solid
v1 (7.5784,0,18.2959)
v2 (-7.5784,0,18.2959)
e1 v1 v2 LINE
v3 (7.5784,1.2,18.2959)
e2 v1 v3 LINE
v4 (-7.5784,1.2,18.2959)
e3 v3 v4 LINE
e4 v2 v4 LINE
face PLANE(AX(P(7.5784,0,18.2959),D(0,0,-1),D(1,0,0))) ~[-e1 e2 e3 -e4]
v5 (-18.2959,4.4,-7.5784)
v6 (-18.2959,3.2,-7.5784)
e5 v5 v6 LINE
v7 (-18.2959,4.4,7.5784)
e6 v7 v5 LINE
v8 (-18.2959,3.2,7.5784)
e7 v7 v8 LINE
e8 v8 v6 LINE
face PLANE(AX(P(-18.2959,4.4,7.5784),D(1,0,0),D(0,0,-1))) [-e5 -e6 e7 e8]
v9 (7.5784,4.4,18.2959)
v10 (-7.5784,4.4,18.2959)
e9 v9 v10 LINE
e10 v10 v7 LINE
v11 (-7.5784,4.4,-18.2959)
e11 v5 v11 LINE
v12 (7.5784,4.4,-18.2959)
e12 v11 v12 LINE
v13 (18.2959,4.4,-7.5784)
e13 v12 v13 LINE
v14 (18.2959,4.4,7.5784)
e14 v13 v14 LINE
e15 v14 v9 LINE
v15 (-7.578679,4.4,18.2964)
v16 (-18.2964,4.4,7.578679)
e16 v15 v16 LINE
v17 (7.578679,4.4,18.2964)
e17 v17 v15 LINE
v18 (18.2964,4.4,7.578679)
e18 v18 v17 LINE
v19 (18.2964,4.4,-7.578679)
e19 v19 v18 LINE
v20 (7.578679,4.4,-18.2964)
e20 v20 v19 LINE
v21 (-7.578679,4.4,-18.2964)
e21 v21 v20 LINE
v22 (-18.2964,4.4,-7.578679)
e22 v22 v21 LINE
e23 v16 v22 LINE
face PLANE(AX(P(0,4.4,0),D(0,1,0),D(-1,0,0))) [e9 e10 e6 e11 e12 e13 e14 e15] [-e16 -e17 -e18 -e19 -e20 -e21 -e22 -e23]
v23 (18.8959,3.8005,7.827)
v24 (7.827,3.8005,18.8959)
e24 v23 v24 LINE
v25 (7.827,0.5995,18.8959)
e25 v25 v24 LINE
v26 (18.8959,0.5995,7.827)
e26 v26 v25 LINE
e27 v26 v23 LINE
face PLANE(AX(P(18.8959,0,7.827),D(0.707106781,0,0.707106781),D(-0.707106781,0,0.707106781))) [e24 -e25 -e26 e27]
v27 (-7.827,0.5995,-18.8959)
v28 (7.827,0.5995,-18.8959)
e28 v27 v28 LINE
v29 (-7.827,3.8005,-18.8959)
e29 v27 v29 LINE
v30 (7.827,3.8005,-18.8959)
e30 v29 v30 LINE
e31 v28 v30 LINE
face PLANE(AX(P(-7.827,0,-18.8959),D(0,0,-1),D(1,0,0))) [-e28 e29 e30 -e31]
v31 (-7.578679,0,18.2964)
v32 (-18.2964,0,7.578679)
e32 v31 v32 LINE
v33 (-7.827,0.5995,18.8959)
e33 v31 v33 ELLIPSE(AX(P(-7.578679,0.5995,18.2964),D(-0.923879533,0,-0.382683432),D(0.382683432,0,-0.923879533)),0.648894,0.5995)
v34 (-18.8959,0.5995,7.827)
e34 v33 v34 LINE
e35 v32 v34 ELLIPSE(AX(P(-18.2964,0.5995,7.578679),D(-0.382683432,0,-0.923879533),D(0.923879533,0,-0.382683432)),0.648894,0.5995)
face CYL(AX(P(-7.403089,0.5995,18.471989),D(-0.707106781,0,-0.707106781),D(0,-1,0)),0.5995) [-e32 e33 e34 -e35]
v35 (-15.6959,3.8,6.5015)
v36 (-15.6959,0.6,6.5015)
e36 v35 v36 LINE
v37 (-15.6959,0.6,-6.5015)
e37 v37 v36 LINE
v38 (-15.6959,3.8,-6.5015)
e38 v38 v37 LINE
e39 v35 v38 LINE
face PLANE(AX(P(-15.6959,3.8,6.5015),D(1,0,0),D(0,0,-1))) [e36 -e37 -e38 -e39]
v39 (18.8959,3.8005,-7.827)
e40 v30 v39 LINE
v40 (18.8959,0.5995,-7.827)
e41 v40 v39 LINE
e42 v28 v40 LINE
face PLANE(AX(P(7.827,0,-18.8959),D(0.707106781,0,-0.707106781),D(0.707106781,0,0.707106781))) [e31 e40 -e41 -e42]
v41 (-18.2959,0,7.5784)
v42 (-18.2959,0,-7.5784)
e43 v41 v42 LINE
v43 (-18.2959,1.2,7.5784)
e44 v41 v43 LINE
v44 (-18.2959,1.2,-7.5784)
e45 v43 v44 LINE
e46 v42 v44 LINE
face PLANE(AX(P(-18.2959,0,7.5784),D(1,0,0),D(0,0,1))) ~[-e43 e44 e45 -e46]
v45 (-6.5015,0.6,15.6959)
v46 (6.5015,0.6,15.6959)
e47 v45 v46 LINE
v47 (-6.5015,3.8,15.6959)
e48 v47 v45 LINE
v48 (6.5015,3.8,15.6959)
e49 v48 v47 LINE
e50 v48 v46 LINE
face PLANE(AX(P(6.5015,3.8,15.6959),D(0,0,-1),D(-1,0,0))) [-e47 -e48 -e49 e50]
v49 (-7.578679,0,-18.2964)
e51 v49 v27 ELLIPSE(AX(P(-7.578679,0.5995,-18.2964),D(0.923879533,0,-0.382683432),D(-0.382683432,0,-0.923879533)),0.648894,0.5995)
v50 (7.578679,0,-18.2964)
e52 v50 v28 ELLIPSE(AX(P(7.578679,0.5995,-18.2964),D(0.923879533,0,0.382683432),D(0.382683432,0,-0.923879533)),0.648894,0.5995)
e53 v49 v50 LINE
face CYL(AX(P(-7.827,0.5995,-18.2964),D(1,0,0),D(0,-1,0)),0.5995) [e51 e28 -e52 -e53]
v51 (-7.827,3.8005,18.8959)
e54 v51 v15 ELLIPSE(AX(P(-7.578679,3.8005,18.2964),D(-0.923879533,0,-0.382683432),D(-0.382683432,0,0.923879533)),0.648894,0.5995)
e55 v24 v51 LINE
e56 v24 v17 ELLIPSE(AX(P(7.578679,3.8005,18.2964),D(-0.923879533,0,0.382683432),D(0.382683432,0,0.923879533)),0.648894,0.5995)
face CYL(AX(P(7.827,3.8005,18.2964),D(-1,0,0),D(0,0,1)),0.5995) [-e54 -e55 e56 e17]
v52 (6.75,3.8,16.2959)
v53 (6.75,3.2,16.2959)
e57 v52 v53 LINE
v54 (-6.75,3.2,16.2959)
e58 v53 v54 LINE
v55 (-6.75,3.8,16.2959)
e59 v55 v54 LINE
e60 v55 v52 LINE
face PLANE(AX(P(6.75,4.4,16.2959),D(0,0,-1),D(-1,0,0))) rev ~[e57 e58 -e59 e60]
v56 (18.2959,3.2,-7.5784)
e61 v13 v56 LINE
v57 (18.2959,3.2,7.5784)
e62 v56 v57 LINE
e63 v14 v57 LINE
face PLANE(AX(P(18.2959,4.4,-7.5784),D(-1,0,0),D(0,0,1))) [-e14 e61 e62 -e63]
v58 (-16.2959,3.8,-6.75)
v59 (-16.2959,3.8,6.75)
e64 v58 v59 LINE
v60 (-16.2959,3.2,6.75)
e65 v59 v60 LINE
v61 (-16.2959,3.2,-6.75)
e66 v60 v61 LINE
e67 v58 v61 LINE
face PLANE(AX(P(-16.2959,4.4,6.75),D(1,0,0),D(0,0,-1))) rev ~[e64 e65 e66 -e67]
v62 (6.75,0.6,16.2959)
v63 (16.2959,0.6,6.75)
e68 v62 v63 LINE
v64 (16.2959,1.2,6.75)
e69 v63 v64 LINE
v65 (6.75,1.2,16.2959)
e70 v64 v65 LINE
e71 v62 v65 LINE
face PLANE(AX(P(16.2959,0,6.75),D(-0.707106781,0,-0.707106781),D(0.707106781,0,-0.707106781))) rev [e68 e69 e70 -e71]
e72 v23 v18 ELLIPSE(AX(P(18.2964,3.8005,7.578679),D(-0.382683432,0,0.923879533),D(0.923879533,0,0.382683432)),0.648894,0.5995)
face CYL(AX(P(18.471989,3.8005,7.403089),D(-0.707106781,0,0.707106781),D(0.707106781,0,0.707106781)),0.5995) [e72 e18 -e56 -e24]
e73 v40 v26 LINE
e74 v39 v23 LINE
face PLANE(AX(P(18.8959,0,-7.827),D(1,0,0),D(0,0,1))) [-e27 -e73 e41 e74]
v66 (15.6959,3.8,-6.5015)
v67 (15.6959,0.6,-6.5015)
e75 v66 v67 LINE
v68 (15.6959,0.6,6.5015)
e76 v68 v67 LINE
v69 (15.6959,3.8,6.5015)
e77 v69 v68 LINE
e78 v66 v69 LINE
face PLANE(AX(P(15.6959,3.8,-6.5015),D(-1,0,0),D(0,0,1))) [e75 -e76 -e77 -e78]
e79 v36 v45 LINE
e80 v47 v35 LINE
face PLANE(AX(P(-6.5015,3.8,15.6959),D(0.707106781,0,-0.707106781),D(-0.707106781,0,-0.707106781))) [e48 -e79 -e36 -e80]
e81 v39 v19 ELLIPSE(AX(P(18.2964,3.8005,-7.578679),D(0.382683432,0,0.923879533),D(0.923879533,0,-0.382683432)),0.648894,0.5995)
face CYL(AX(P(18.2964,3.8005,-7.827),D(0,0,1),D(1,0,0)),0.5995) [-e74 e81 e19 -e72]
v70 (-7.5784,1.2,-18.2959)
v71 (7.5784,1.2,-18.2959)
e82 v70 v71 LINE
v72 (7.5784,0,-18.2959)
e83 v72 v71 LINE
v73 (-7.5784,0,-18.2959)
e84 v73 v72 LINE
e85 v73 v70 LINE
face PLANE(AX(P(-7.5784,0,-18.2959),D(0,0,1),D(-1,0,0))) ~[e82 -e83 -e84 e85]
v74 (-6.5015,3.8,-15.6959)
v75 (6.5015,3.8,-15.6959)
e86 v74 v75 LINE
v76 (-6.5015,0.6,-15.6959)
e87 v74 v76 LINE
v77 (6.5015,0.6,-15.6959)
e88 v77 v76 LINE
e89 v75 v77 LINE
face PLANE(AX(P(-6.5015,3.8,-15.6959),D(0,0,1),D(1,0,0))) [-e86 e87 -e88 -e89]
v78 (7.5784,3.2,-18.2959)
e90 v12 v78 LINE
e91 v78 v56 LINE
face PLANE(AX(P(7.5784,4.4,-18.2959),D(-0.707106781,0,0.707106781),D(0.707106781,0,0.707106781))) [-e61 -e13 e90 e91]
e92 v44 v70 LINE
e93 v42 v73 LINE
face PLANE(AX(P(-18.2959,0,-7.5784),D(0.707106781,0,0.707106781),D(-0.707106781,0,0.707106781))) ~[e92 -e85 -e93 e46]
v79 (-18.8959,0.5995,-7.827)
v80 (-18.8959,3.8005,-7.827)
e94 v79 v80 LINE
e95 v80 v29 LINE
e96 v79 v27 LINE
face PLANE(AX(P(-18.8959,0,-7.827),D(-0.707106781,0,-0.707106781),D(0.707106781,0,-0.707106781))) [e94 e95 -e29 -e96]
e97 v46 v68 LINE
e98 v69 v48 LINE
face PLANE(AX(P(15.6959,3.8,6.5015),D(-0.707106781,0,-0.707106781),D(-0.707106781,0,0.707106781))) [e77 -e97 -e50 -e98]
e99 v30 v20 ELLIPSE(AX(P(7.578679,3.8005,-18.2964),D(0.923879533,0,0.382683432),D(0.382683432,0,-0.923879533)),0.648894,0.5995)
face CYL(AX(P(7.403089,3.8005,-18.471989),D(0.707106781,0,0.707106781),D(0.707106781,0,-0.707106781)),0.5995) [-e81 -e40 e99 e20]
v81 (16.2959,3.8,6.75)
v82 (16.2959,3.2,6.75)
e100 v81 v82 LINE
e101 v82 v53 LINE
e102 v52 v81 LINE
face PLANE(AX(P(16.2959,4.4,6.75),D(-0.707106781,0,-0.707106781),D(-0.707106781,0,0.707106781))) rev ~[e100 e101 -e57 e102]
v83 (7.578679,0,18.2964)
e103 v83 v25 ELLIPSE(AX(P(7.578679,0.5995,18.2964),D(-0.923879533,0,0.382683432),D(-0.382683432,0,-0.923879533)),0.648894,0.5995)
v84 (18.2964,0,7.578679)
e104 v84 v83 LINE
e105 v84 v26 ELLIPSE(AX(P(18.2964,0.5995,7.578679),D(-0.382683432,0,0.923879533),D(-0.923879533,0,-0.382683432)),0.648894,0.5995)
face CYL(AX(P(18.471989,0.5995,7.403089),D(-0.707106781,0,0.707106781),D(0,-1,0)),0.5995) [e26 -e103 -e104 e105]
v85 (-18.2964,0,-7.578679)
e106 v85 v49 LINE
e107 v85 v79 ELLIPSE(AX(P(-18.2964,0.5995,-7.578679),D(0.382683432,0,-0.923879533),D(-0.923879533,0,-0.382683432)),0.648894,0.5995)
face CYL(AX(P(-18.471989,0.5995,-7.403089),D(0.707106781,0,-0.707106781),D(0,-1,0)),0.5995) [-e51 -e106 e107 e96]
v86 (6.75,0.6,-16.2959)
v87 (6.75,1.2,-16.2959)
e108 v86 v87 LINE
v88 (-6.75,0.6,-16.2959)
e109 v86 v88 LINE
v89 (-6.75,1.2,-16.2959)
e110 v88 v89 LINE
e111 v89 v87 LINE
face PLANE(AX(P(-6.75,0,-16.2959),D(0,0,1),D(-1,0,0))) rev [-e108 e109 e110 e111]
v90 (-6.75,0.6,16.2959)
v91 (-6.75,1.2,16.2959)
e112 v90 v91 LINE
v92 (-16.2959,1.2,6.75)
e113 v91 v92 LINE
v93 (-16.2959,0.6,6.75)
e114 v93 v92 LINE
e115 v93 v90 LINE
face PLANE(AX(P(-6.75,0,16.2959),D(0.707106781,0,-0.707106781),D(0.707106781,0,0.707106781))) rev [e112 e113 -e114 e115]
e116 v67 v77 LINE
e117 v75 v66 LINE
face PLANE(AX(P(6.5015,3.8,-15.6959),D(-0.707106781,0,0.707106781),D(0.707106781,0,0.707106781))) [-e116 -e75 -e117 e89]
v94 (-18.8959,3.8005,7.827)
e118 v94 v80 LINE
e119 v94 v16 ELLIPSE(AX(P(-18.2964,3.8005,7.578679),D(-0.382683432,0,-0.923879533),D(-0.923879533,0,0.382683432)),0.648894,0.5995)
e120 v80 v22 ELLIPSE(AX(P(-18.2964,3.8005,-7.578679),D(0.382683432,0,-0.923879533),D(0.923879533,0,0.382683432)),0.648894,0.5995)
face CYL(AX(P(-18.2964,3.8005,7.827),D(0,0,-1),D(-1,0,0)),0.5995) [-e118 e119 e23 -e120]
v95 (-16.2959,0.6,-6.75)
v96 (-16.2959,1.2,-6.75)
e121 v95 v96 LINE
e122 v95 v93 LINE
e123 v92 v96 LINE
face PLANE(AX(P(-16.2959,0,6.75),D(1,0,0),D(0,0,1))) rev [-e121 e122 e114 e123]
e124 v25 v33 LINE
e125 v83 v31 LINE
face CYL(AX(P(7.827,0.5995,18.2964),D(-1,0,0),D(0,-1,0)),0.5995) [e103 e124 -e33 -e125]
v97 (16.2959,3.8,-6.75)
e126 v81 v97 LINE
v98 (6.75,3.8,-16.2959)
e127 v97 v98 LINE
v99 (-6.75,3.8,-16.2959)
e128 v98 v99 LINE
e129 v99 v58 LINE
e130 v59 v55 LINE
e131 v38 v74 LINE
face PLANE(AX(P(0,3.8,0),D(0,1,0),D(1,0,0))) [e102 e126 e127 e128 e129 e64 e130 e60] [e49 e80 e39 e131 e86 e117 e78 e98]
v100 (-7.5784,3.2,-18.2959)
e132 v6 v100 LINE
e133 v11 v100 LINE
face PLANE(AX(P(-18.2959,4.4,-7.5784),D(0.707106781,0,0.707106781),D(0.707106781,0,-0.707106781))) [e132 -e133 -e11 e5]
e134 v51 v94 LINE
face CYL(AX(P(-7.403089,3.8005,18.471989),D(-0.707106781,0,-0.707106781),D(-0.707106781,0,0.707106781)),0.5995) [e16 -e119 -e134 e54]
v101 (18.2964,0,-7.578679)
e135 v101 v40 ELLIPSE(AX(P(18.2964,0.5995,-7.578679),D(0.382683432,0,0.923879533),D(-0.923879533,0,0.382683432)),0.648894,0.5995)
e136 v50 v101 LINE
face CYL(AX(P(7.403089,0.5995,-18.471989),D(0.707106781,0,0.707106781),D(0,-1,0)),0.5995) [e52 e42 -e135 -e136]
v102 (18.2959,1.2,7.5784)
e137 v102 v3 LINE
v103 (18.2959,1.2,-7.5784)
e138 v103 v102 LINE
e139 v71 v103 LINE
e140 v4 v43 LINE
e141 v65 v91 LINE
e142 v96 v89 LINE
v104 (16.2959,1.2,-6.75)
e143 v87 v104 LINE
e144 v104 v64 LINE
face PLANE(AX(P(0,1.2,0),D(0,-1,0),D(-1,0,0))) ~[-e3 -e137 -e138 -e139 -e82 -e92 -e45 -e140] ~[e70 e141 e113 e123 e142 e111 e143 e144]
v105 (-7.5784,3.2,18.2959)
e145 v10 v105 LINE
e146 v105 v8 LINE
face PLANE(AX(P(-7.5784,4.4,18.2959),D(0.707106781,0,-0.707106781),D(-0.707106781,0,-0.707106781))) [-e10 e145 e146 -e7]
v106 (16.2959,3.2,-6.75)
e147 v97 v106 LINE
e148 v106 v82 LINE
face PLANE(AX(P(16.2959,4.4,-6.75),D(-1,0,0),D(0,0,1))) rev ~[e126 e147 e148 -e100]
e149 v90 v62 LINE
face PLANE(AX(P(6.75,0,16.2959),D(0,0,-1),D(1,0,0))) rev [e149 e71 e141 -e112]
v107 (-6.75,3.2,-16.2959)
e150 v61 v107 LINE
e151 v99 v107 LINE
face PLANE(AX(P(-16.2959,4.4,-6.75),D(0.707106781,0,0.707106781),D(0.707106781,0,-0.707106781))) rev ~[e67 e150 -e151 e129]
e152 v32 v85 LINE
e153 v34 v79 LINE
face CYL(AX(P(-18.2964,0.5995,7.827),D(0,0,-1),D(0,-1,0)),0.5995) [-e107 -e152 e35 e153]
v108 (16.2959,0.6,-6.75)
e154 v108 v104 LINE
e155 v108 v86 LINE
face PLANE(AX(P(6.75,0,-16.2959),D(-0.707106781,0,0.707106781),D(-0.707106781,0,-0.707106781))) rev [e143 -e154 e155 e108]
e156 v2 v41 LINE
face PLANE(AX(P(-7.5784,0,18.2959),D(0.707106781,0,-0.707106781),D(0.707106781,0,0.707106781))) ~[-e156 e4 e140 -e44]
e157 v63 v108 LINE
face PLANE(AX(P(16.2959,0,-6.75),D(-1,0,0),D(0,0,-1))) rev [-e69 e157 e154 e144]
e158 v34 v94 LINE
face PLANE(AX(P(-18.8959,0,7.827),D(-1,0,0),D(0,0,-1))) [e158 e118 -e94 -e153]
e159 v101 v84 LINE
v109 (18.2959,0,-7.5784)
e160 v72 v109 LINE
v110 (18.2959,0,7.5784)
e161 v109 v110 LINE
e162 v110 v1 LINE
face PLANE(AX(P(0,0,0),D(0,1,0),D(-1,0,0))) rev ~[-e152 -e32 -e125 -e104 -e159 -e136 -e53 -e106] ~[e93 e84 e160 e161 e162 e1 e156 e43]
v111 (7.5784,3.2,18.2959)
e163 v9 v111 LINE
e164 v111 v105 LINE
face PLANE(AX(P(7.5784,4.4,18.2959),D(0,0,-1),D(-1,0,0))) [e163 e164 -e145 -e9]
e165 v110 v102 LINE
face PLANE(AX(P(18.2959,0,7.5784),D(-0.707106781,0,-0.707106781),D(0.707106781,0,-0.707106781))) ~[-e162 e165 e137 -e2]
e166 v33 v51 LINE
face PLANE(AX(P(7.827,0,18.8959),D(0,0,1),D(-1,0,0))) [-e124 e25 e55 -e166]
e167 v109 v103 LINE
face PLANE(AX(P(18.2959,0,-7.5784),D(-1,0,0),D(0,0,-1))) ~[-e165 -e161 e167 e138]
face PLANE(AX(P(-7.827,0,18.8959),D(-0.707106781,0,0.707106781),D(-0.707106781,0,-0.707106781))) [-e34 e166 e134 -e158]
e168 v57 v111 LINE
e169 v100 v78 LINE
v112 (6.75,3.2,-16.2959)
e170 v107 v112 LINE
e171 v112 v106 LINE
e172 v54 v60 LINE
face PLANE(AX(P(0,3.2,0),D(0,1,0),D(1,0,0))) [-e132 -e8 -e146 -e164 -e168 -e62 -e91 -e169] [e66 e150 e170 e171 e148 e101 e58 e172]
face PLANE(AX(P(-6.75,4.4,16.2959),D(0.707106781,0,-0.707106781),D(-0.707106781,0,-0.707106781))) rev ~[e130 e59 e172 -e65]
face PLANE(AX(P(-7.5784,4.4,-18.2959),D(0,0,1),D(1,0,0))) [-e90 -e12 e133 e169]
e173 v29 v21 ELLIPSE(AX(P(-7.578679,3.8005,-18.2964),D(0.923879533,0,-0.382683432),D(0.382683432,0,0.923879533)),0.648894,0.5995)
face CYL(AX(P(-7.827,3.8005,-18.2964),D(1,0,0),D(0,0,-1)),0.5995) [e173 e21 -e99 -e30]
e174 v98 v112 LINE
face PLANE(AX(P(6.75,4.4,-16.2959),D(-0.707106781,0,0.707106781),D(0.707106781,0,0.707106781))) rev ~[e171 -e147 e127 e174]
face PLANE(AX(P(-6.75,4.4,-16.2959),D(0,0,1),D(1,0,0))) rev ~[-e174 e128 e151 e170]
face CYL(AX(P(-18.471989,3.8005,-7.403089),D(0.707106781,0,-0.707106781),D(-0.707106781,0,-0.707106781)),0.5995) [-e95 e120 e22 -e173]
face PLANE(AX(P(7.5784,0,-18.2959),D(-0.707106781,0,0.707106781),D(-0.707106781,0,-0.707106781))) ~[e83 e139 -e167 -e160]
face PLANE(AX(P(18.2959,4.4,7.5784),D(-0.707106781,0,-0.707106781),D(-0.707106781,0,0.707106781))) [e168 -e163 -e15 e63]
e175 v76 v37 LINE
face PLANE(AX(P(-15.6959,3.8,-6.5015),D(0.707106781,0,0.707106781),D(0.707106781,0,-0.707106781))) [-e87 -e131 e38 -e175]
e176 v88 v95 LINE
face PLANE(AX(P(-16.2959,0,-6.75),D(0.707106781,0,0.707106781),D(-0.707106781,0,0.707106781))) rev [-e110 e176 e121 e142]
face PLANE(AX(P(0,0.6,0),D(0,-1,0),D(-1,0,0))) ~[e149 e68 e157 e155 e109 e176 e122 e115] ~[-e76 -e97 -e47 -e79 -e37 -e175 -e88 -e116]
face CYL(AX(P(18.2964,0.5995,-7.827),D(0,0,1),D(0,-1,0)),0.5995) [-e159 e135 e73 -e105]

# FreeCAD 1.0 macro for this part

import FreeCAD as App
import Part
import Sketcher
from FreeCAD import Vector
Q = App.Units.Quantity


def edges_at(feature, points):
    """Names of the edges that pass closest to the given points."""
    edges = feature.Shape.Edges
    near = lambda p: min(range(len(edges)), key=lambda i: edges[i].distToShape(Part.Vertex(*p))[0])
    return sorted({f"Edge{near(p) + 1}" for p in points})


def add_polygon(sketch, points):
    """Adds a closed chain of lines whose ends are joined by coincident constraints."""
    first, n = sketch.GeometryCount, len(points)
    for a, b in zip(points, points[1:] + points[:1]):
        sketch.addGeometry(Part.LineSegment(App.Vector(*a, 0), App.Vector(*b, 0)), False)
    for i in range(n):
        sketch.addConstraint(Sketcher.Constraint("Coincident", first + i, 2, first + (i + 1) % n, 1))

doc = App.newDocument("Part")
body = doc.addObject("PartDesign::Body", "Body")

sketch1 = body.newObject("Sketcher::SketchObject", "Sketch")
sketch1.AttachmentSupport = (doc.getObject("XZ_Plane"), [""])
sketch1.MapMode = "FlatFace"
add_polygon(sketch1, [(-19, -8), (-19, 8), (-8, 19), (8, 19), (19, 8), (19, -8), (8, -19), (-8, -19)])
sketch1.addConstraint([
    Sketcher.Constraint("Vertical", 0),
    Sketcher.Constraint("Horizontal", 2),
    Sketcher.Constraint("Vertical", 4),
    Sketcher.Constraint("Horizontal", 6),
    Sketcher.Constraint("Symmetric", 0, 2, 4, 2, -1, 1),
    Sketcher.Constraint("Symmetric", 1, 2, 5, 2, -1, 1),
    Sketcher.Constraint("Perpendicular", 1, 3),
    Sketcher.Constraint("Perpendicular", 5, 7),
    Sketcher.Constraint("Horizontal", 0, 2, 3, 2),
    Sketcher.Constraint("Horizontal", 4, 2, 7, 2),
    Sketcher.Constraint("Vertical", 2, 2, 5, 2),
    Sketcher.Constraint("Equal", 6, 0),
    Sketcher.Constraint("DistanceX", 2, 1, 2, 2, Q("15.654 mm")),
    Sketcher.Constraint("DistanceX", 0, 2, -1, 1, Q("18.896 mm")),
])
pad1 = body.newObject("PartDesign::Pad", "Pad")
pad1.Profile = sketch1
pad1.Length = 4.4
pad1.Reversed = True

sketch2 = body.newObject("Sketcher::SketchObject", "Sketch001")
sketch2.AttachmentSupport = (doc.getObject("XZ_Plane"), [""])
sketch2.MapMode = "FlatFace"
sketch2.AttachmentOffset = App.Placement(Vector(0, 0, -4.4), App.Rotation())
add_polygon(sketch2, [(8, -18), (-8, -18), (-18, -8), (-18, 8), (-8, 18), (8, 18), (18, 8), (18, -8)])
add_polygon(sketch2, [(16, 7), (7, 16), (-7, 16), (-16, 7), (-16, -7), (-7, -16), (7, -16), (16, -7)])
sketch2.addConstraint([
    Sketcher.Constraint("Horizontal", 0),
    Sketcher.Constraint("Vertical", 2),
    Sketcher.Constraint("Horizontal", 4),
    Sketcher.Constraint("Vertical", 6),
    Sketcher.Constraint("Horizontal", 9),
    Sketcher.Constraint("Vertical", 11),
    Sketcher.Constraint("Horizontal", 13),
    Sketcher.Constraint("Vertical", 15),
    Sketcher.Constraint("Symmetric", 0, 2, 4, 2, -1, 1),
    Sketcher.Constraint("Symmetric", 1, 2, 5, 2, -1, 1),
    Sketcher.Constraint("Symmetric", 8, 2, 12, 2, -1, 1),
    Sketcher.Constraint("Symmetric", 10, 2, 14, 2, -1, 1),
    Sketcher.Constraint("Perpendicular", 1, 3),
    Sketcher.Constraint("Perpendicular", 5, 7),
    Sketcher.Constraint("Perpendicular", 7, 8),
    Sketcher.Constraint("Perpendicular", 8, 10),
    Sketcher.Constraint("Perpendicular", 10, 12),
    Sketcher.Constraint("Perpendicular", 12, 14),
    Sketcher.Constraint("Horizontal", 2, 2, 5, 2),
    Sketcher.Constraint("Horizontal", 1, 2, 6, 2),
    Sketcher.Constraint("Horizontal", 11, 2, 14, 2),
    Sketcher.Constraint("Vertical", 0, 2, 3, 2),
    Sketcher.Constraint("Equal", 4, 2),
    Sketcher.Constraint("Equal", 13, 11),
    Sketcher.Constraint("DistanceY", 8, 2, 4, 2, Q("2 mm")),
    Sketcher.Constraint("DistanceX", 9, 2, 9, 1, Q("13.5 mm")),
    Sketcher.Constraint("Distance", 8, Q("13.5 mm")),
    Sketcher.Constraint("DistanceX", 0, 2, 0, 1, Q("15.1568 mm")),
])
pocket1 = body.newObject("PartDesign::Pocket", "Pocket")
pocket1.Profile = sketch2
pocket1.Length = 1.2
pocket1.Reversed = True

sketch3 = body.newObject("Sketcher::SketchObject", "Sketch002")
sketch3.AttachmentSupport = (doc.getObject("XZ_Plane"), [""])
sketch3.MapMode = "FlatFace"
sketch3.AttachmentOffset = App.Placement(Vector(0, 0, -4.4), App.Rotation())
add_polygon(sketch3, [(-16, -7), (-16, 7), (-7, 16), (7, 16), (16, 7), (16, -7), (7, -16), (-7, -16)])
sketch3.addConstraint([
    Sketcher.Constraint("Vertical", 0),
    Sketcher.Constraint("Horizontal", 2),
    Sketcher.Constraint("Vertical", 4),
    Sketcher.Constraint("Horizontal", 6),
    Sketcher.Constraint("Symmetric", 0, 2, 4, 2, -1, 1),
    Sketcher.Constraint("Symmetric", 1, 2, 5, 2, -1, 1),
    Sketcher.Constraint("Perpendicular", 1, 3),
    Sketcher.Constraint("Perpendicular", 5, 7),
    Sketcher.Constraint("Horizontal", 0, 2, 3, 2),
    Sketcher.Constraint("Horizontal", 4, 2, 7, 2),
    Sketcher.Constraint("Vertical", 2, 2, 5, 2),
    Sketcher.Constraint("Equal", 6, 0),
    Sketcher.Constraint("DistanceX", 2, 1, 2, 2, Q("13.5 mm")),
    Sketcher.Constraint("Distance", 1, Q("13.5 mm")),
])
pocket2 = body.newObject("PartDesign::Pocket", "Pocket001")
pocket2.Profile = sketch3
pocket2.Length = 0.6
pocket2.Reversed = True

sketch4 = body.newObject("Sketcher::SketchObject", "Sketch003")
sketch4.AttachmentSupport = (doc.getObject("XZ_Plane"), [""])
sketch4.MapMode = "FlatFace"
sketch4.AttachmentOffset = App.Placement(Vector(0, 0, -3.8), App.Rotation())
add_polygon(sketch4, [(7, -16), (-7, -16), (-16, -7), (-16, 7), (-7, 16), (7, 16), (16, 7), (16, -7)])
sketch4.addConstraint([
    Sketcher.Constraint("Horizontal", 0),
    Sketcher.Constraint("Vertical", 2),
    Sketcher.Constraint("Horizontal", 4),
    Sketcher.Constraint("Vertical", 6),
    Sketcher.Constraint("Symmetric", 0, 2, 4, 2, -1, 1),
    Sketcher.Constraint("Symmetric", 1, 2, 5, 2, -1, 1),
    Sketcher.Constraint("Perpendicular", 1, 3),
    Sketcher.Constraint("Perpendicular", 5, 7),
    Sketcher.Constraint("Horizontal", 2, 2, 5, 2),
    Sketcher.Constraint("Horizontal", 1, 2, 6, 2),
    Sketcher.Constraint("Vertical", 0, 2, 3, 2),
    Sketcher.Constraint("Equal", 4, 2),
    Sketcher.Constraint("DistanceX", 0, 2, 0, 1, Q("13.003 mm")),
    Sketcher.Constraint("DistanceY", 0, 2, -1, 1, Q("15.696 mm")),
])
pocket3 = body.newObject("PartDesign::Pocket", "Pocket002")
pocket3.Profile = sketch4
pocket3.Length = 3.8
pocket3.Reversed = True
doc.recompute()

fillet = body.newObject("PartDesign::Fillet", "Fillet")
fillet.Base = (pocket3, edges_at(pocket3, [
    (0, 4.4, -18.896),
    (-13.361, 4.4, -13.361),
    (13.361, 4.4, -13.361),
    (18.896, 4.4, 0),
    (13.361, 4.4, 13.361),
    (0, 4.4, 18.896),
    (-13.361, 4.4, 13.361),
    (-18.896, 4.4, 0),
    (-18.896, 0, 0),
    (-13.361, 0, 13.361),
    (0, 0, 18.896),
    (13.361, 0, 13.361),
    (-13.361, 0, -13.361),
    (0, 0, -18.896),
    (18.896, 0, 0),
    (13.361, 0, -13.361),
]))
fillet.Radius = 0.6
doc.recompute()

datumplane = body.newObject("PartDesign::Plane", "DatumPlane")
datumplane.AttachmentSupport = (doc.getObject("XZ_Plane"), [""])
datumplane.MapMode = "FlatFace"
datumplane.AttachmentOffset = App.Placement(Vector(0, 0, -2.2), App.Rotation())
mirrored = body.newObject("PartDesign::Mirrored", "Mirrored")
mirrored.Originals = [pocket2, pocket1]
mirrored.MirrorPlane = (datumplane, [""])
body.Tip = mirrored

doc.recompute()
